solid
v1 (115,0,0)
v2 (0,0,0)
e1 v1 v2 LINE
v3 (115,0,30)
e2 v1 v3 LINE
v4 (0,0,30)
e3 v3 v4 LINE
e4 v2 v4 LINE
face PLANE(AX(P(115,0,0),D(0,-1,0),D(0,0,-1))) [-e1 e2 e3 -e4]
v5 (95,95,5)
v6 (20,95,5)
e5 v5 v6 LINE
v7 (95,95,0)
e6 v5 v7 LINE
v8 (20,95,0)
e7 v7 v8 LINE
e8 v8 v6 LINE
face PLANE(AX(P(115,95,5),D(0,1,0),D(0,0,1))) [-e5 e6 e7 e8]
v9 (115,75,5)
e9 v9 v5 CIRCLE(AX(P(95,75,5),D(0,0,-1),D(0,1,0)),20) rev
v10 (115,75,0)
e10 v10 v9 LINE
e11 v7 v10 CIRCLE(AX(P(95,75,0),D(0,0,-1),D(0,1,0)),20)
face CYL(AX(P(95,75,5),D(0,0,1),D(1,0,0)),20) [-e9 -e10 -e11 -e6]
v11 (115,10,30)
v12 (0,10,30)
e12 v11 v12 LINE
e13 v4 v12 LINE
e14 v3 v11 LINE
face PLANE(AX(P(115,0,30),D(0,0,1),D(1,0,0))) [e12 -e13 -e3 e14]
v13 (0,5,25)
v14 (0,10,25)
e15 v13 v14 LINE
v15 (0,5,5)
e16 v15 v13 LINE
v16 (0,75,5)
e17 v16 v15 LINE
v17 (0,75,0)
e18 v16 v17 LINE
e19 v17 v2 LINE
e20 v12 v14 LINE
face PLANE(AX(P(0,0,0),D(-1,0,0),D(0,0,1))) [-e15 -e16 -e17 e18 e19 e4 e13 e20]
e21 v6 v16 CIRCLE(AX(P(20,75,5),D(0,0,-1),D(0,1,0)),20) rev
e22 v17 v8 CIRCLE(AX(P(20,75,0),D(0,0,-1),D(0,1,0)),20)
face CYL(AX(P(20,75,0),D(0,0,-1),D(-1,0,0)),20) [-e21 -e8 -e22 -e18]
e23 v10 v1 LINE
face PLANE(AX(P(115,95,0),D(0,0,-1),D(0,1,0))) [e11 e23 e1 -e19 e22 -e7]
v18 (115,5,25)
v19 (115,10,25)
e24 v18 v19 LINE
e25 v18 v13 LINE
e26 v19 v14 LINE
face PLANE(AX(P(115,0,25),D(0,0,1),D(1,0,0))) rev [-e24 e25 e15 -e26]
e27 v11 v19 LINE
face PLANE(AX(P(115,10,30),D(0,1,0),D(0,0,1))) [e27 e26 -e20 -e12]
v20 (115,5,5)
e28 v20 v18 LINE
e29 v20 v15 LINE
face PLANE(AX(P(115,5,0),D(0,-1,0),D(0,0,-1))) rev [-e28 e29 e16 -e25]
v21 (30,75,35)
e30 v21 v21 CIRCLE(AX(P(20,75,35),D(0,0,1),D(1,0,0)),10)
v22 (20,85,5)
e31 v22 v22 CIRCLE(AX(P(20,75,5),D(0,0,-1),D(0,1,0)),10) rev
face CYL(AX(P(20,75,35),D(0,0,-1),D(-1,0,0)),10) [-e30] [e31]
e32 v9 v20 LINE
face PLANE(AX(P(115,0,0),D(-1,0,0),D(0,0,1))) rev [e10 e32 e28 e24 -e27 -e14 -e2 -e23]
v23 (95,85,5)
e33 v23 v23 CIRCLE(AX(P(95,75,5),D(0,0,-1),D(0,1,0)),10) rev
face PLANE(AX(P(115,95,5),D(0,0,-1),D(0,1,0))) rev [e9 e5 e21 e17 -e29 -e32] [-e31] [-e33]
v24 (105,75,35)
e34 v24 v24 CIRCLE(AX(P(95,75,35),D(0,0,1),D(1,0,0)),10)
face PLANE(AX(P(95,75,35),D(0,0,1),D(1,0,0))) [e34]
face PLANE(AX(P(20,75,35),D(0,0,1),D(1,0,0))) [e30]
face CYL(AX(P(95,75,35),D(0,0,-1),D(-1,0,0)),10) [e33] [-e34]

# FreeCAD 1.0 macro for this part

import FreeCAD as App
import Part
import Sketcher

V = App.Vector


def edges_at(feature, points):
    """Names of the edges that pass closest to the given points."""
    edges = feature.Shape.Edges
    near = lambda p: min(range(len(edges)), key=lambda i: edges[i].distToShape(Part.Vertex(*p))[0])
    return sorted({f"Edge{near(p) + 1}" for p in points})


def add_polygon(sketch, points):
    """Adds a closed chain of lines whose ends are joined by coincident constraints."""
    first, n = sketch.GeometryCount, len(points)
    for a, b in zip(points, points[1:] + points[:1]):
        sketch.addGeometry(Part.LineSegment(App.Vector(*a, 0), App.Vector(*b, 0)), False)
    for i in range(n):
        sketch.addConstraint(Sketcher.Constraint("Coincident", first + i, 2, first + (i + 1) % n, 1))

doc = App.newDocument("Part")
params = doc.addObject("Spreadsheet::Sheet", "Params")
for row, (alias, value) in enumerate([
    ("sketch1_width", "95 mm"),
    ("sketch1_width2", "90 mm"),
    ("sketch1_width3", "5 mm"),
    ("sketch1_height", "20 mm"),
    ("pad1_length", "115 mm"),
    ("fillet_radius", "20 mm"),
    ("sketch2_diameter", "20 mm"),
    ("pad2_length", "30 mm"),
], start=1):
    params.set(f"A{row}", alias)
    params.set(f"B{row}", "=" + value)
    params.setAlias(f"B{row}", alias)

body = doc.addObject("PartDesign::Body", "Body")

# Sketch on YZ plane
sketch1 = body.newObject("Sketcher::SketchObject", "Sketch")
sketch1.AttachmentSupport = (doc.getObject("YZ_Plane"), [""])
sketch1.MapMode = "FlatFace"
add_polygon(sketch1, [(0, 0), (95, 0), (95, 5), (5, 5), (5, 25), (10, 25), (10, 30), (0, 30)])  # lines 0-7
sketch1.addConstraint(Sketcher.Constraint("Horizontal", 0))
sketch1.addConstraint(Sketcher.Constraint("Vertical", 1))
sketch1.addConstraint(Sketcher.Constraint("Horizontal", 2))
sketch1.addConstraint(Sketcher.Constraint("Vertical", 3))
sketch1.addConstraint(Sketcher.Constraint("Horizontal", 4))
sketch1.addConstraint(Sketcher.Constraint("Vertical", 5))
sketch1.addConstraint(Sketcher.Constraint("Horizontal", 6))
sketch1.addConstraint(Sketcher.Constraint("Vertical", 7))
sketch1.addConstraint(Sketcher.Constraint("Coincident", 7, 2, -1, 1))
sketch1.addConstraint(Sketcher.Constraint("Equal", 4, 1))
sketch1.addConstraint(Sketcher.Constraint("Equal", 1, 5))
sketch1.addConstraint(Sketcher.Constraint("DistanceX", 0, 1, 0, 2, 95.0))
sketch1.addConstraint(Sketcher.Constraint("DistanceX", 2, 2, 2, 1, 90.0))
sketch1.addConstraint(Sketcher.Constraint("DistanceX", 4, 1, 4, 2, 5.0))
sketch1.addConstraint(Sketcher.Constraint("DistanceY", 3, 1, 3, 2, 20.0))
sketch1.setExpression("Constraints[19]", "Params.sketch1_width")
sketch1.setExpression("Constraints[20]", "Params.sketch1_width2")
sketch1.setExpression("Constraints[21]", "Params.sketch1_width3")
sketch1.setExpression("Constraints[22]", "Params.sketch1_height")
pad1 = body.newObject("PartDesign::Pad", "Pad")
pad1.Profile = sketch1
pad1.setExpression("Length", "Params.pad1_length")
doc.recompute()

fillet = body.newObject("PartDesign::Fillet", "Fillet")
fillet.Base = (pad1, edges_at(pad1, [(115, 95, 2.5), (0, 95, 2.5)]))
fillet.setExpression("Radius", "Params.fillet_radius")

# Sketch on XY plane
sketch2 = body.newObject("Sketcher::SketchObject", "Sketch001")
sketch2.AttachmentSupport = (doc.getObject("XY_Plane"), [""])
sketch2.MapMode = "FlatFace"
sketch2.AttachmentOffset = App.Placement(V(0, 0, 5), App.Rotation())
sketch2.addGeometry(Part.Circle(V(20, 75, 0), V(0, 0, 1), 10), False)
sketch2.addGeometry(Part.Circle(V(95, 75, 0), V(0, 0, 1), 10), False)
sketch2.addConstraint(Sketcher.Constraint("Equal", 0, 1))
sketch2.addConstraint(Sketcher.Constraint("Horizontal", 0, 3, 1, 3))
sketch2.addConstraint(Sketcher.Constraint("Diameter", 0, 20.0))
sketch2.addConstraint(Sketcher.Constraint("DistanceX", -1, 1, 0, 3, 20.0))
sketch2.addConstraint(Sketcher.Constraint("DistanceY", -1, 1, 0, 3, 75.0))
sketch2.addConstraint(Sketcher.Constraint("DistanceX", -1, 1, 1, 3, 95.0))
sketch2.setExpression("Constraints[2]", "Params.sketch2_diameter")
pad2 = body.newObject("PartDesign::Pad", "Pad001")
pad2.Profile = sketch2
pad2.setExpression("Length", "Params.pad2_length")

doc.recompute()
